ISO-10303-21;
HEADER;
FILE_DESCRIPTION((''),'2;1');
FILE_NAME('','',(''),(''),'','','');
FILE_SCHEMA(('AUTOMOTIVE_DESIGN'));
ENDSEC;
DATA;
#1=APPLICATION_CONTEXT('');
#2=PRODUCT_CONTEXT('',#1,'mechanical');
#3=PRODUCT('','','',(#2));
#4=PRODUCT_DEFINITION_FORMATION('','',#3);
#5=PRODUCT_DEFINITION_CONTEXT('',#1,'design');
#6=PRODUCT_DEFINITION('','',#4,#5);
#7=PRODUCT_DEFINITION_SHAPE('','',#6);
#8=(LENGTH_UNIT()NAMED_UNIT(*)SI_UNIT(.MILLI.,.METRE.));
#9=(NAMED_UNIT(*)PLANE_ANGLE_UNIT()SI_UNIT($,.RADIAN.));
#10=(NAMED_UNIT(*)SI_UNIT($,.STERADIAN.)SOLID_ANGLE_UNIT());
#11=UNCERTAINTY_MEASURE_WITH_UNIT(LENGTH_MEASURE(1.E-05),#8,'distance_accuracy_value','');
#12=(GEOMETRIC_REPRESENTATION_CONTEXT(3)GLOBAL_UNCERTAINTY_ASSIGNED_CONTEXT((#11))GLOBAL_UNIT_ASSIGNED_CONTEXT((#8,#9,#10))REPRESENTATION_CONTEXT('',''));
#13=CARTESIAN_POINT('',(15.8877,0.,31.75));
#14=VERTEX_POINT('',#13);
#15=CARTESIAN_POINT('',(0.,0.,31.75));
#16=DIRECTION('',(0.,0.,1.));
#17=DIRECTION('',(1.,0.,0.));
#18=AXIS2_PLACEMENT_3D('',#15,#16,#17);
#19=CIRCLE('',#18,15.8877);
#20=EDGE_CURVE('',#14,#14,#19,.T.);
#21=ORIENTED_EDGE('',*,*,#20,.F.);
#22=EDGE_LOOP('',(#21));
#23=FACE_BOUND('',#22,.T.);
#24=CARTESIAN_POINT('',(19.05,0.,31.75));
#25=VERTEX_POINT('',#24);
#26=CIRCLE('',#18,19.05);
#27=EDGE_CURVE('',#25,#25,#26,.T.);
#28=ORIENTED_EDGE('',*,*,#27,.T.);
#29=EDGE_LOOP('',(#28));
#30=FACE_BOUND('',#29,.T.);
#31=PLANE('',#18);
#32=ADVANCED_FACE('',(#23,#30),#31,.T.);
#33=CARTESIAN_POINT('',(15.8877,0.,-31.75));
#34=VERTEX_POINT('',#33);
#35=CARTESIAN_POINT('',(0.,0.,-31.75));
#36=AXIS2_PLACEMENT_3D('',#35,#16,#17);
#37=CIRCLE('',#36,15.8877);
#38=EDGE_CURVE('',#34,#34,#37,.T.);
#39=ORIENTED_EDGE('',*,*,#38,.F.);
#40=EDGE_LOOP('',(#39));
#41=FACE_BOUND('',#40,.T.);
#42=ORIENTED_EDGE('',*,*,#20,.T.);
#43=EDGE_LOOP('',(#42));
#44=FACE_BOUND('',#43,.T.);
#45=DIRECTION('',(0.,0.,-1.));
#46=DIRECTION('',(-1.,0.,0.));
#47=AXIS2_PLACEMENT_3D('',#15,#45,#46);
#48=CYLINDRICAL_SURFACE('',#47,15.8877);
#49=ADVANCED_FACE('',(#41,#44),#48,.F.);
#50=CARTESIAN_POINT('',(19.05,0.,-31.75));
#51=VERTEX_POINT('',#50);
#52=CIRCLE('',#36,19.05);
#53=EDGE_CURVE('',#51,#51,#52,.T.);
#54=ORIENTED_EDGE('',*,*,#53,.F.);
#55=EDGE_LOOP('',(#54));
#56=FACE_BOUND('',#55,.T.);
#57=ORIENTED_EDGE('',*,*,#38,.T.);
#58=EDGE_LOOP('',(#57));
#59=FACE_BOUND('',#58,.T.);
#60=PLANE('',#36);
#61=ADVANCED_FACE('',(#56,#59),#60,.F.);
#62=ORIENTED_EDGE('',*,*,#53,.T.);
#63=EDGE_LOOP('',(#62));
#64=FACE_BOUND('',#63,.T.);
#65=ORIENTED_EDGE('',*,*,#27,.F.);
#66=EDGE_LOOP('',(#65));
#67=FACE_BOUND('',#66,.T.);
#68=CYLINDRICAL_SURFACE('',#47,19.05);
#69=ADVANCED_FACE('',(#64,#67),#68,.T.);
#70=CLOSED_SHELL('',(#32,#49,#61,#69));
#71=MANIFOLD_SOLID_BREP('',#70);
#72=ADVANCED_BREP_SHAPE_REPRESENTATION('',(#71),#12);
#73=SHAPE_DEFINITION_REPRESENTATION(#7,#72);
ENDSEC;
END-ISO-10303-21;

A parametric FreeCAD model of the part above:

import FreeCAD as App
import Part
import Sketcher
Q = App.Units.Quantity

doc = App.newDocument("Part")
params = doc.addObject("Spreadsheet::Sheet", "Params")
for row, (alias, value) in enumerate([
    ("sketch1_diameter", "1.5 in"),
    ("sketch1_diameter2", "1.251 in"),
    ("pad1_length", "2.5 in"),
], start=1):
    params.set(f"A{row}", alias)
    params.set(f"B{row}", "=" + value)
    params.setAlias(f"B{row}", alias)

body = doc.addObject("PartDesign::Body", "Body")

# Sketch on XY plane
sketch1 = doc.addObject("Sketcher::SketchObject", "Sketch")
body.addObject(sketch1)
sketch1.AttachmentSupport = (doc.XY_Plane, [""])
sketch1.MapMode = "FlatFace"
sketch1.addGeometry([
    Part.Circle(App.Vector(0, 0, 0), App.Vector(0, 0, 1), 19),
    Part.Circle(App.Vector(0, 0, 0), App.Vector(0, 0, 1), 16),
], False)
sketch1.addConstraint([
    Sketcher.Constraint("Coincident", 0, 3, -1, 1),
    Sketcher.Constraint("Coincident", 1, 3, -1, 1),
    Sketcher.Constraint("Diameter", 0, Q("1.5 in")),
    Sketcher.Constraint("Diameter", 1, Q("1.251 in")),
])
sketch1.setExpression("Constraints[2]", "Params.sketch1_diameter")
sketch1.setExpression("Constraints[3]", "Params.sketch1_diameter2")
pad1 = doc.addObject("PartDesign::Pad", "Pad")
body.addObject(pad1)
pad1.Profile = sketch1
pad1.setExpression("Length", "Params.pad1_length")
pad1.Midplane = True

doc.recompute()
